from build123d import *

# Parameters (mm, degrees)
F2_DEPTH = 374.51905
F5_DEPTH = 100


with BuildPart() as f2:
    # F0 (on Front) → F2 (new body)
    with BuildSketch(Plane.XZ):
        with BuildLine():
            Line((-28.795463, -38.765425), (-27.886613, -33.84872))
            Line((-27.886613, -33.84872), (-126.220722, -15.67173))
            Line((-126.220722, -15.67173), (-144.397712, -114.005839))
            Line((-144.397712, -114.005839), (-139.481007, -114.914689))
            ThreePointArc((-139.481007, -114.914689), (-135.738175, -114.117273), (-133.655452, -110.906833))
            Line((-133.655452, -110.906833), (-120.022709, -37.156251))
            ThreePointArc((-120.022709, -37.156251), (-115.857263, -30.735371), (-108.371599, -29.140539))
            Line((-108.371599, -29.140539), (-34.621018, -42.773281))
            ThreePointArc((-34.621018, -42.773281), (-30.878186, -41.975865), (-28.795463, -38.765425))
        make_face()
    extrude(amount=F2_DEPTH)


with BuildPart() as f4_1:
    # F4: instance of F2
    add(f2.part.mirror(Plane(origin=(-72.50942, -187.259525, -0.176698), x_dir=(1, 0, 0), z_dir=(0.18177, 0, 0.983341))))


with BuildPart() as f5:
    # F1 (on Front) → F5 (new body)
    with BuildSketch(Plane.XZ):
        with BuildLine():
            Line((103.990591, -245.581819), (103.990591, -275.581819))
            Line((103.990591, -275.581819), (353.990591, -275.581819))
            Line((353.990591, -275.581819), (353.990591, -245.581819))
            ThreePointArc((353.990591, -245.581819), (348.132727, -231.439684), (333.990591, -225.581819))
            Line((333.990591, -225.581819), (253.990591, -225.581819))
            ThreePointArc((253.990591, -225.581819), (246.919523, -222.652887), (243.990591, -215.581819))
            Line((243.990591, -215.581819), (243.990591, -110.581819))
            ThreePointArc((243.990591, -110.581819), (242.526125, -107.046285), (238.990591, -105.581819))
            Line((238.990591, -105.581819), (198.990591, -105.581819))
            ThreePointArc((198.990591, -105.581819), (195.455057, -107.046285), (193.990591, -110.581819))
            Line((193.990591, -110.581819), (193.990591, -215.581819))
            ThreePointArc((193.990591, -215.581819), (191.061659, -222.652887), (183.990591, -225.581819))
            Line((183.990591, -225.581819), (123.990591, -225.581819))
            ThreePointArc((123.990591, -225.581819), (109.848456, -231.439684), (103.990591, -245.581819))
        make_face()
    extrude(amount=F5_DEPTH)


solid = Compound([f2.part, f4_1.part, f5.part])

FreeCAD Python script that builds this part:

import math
import FreeCAD as App
import Part
import Sketcher

doc = App.newDocument("Part")
body = doc.addObject("PartDesign::Body", "Body")

sketch1 = body.newObject("Sketcher::SketchObject", "Sketch")
sketch1.AttachmentSupport = (doc.getObject("XZ_Plane"), [""])
sketch1.MapMode = "FlatFace"
sketch1.addGeometry(Part.LineSegment(App.Vector(-28.8, -38.8, 0), App.Vector(-27.9, -33.8, 0)), False)
sketch1.addGeometry(Part.LineSegment(App.Vector(-27.9, -33.8, 0), App.Vector(-126.2, -15.7, 0)), False)
sketch1.addGeometry(Part.LineSegment(App.Vector(-126.2, -15.7, 0), App.Vector(-144.4, -114, 0)), False)
sketch1.addGeometry(Part.LineSegment(App.Vector(-144.4, -114, 0), App.Vector(-139.5, -114.9, 0)), False)
sketch1.addGeometry(Part.ArcOfCircle(Part.Circle(App.Vector(-138.6, -110, 0), App.Vector(0, 0, 1), 5), math.radians(-100), math.radians(-10)), False)
sketch1.addGeometry(Part.LineSegment(App.Vector(-133.7, -110.9, 0), App.Vector(-120, -37.2, 0)), False)
sketch1.addGeometry(Part.ArcOfCircle(Part.Circle(App.Vector(-110.2, -39, 0), App.Vector(0, 0, 1), 10), math.radians(80), math.radians(170)), False)
sketch1.addGeometry(Part.LineSegment(App.Vector(-108.4, -29.1, 0), App.Vector(-34.6, -42.8, 0)), False)
sketch1.addGeometry(Part.ArcOfCircle(Part.Circle(App.Vector(-33.7, -37.9, 0), App.Vector(0, 0, 1), 5), math.radians(-100), math.radians(-10)), False)
sketch1.addConstraint(Sketcher.Constraint("Coincident", 0, 2, 1, 1))
sketch1.addConstraint(Sketcher.Constraint("Coincident", 1, 2, 2, 1))
sketch1.addConstraint(Sketcher.Constraint("Coincident", 2, 2, 3, 1))
sketch1.addConstraint(Sketcher.Constraint("Tangent", 3, 2, 4, 1))
sketch1.addConstraint(Sketcher.Constraint("Tangent", 4, 2, 5, 1))
sketch1.addConstraint(Sketcher.Constraint("Tangent", 5, 2, 6, 2))
sketch1.addConstraint(Sketcher.Constraint("Tangent", 6, 1, 7, 1))
sketch1.addConstraint(Sketcher.Constraint("Tangent", 7, 2, 8, 1))
sketch1.addConstraint(Sketcher.Constraint("Tangent", 8, 2, 0, 1))
sketch1.addConstraint(Sketcher.Constraint("Equal", 4, 8))
sketch1.addConstraint(Sketcher.Constraint("Perpendicular", 0, 1))
sketch1.addConstraint(Sketcher.Constraint("Perpendicular", 1, 2))
sketch1.addConstraint(Sketcher.Constraint("Perpendicular", 2, 3))
sketch1.addConstraint(Sketcher.Constraint("Perpendicular", 3, 5))
sketch1.addConstraint(Sketcher.Constraint("Perpendicular", 5, 7))
sketch1.addConstraint(Sketcher.Constraint("Equal", 1, 2))
sketch1.addConstraint(Sketcher.Constraint("Equal", 0, 3))
sketch1.addConstraint(Sketcher.Constraint("Radius", 4, 4.999999))
sketch1.addConstraint(Sketcher.Constraint("Radius", 6, 9.999999))
sketch1.addConstraint(Sketcher.Constraint("Distance", 0, 5.0))
sketch1.addConstraint(Sketcher.Constraint("Distance", 1, 100.0))
sketch1.addConstraint(Sketcher.Constraint("DistanceX", 6, 3, -1, 1, 110.189299))
sketch1.addConstraint(Sketcher.Constraint("DistanceX", 6, 1, -1, 1, 108.371599))
sketch1.addConstraint(Sketcher.Constraint("DistanceY", 6, 3, -1, 1, 38.973949))
pad1 = body.newObject("PartDesign::Pad", "Pad")
pad1.Profile = sketch1
pad1.Length = 374.51905
body2 = doc.addObject("PartDesign::Body", "Body001")
doc.recompute()

mirroring = doc.addObject("Part::Mirroring", "Mirroring")
mirroring.Source = body
mirroring.Base = App.Vector(-72.50942, -187.259525, -0.176698)
mirroring.Normal = App.Vector(0.181770013, 0, 0.983341071)
body2.BaseFeature = mirroring
doc.recompute()
body3 = doc.addObject("PartDesign::Body", "Body002")

sketch2 = body3.newObject("Sketcher::SketchObject", "Sketch001")
sketch2.AttachmentSupport = (doc.getObject("XZ_Plane002"), [""])
sketch2.MapMode = "FlatFace"
sketch2.addGeometry(Part.LineSegment(App.Vector(104, -245.6, 0), App.Vector(104, -275.6, 0)), False)
sketch2.addGeometry(Part.LineSegment(App.Vector(104, -275.6, 0), App.Vector(354, -275.6, 0)), False)
sketch2.addGeometry(Part.LineSegment(App.Vector(354, -275.6, 0), App.Vector(354, -245.6, 0)), False)
sketch2.addGeometry(Part.ArcOfCircle(Part.Circle(App.Vector(334, -245.6, 0), App.Vector(0, 0, 1), 20), math.radians(0), math.radians(90)), False)
sketch2.addGeometry(Part.LineSegment(App.Vector(334, -225.6, 0), App.Vector(254, -225.6, 0)), False)
sketch2.addGeometry(Part.ArcOfCircle(Part.Circle(App.Vector(254, -215.6, 0), App.Vector(0, 0, 1), 10), math.radians(180), math.radians(270)), False)
sketch2.addGeometry(Part.LineSegment(App.Vector(244, -215.6, 0), App.Vector(244, -110.6, 0)), False)
sketch2.addGeometry(Part.ArcOfCircle(Part.Circle(App.Vector(239, -110.6, 0), App.Vector(0, 0, 1), 5), math.radians(0), math.radians(90)), False)
sketch2.addGeometry(Part.LineSegment(App.Vector(239, -105.6, 0), App.Vector(199, -105.6, 0)), False)
sketch2.addGeometry(Part.ArcOfCircle(Part.Circle(App.Vector(199, -110.6, 0), App.Vector(0, 0, 1), 5), math.radians(90), math.radians(180)), False)
sketch2.addGeometry(Part.LineSegment(App.Vector(194, -110.6, 0), App.Vector(194, -215.6, 0)), False)
sketch2.addGeometry(Part.ArcOfCircle(Part.Circle(App.Vector(184, -215.6, 0), App.Vector(0, 0, 1), 10), math.radians(-90), math.radians(0)), False)
sketch2.addGeometry(Part.LineSegment(App.Vector(184, -225.6, 0), App.Vector(124, -225.6, 0)), False)
sketch2.addGeometry(Part.ArcOfCircle(Part.Circle(App.Vector(124, -245.6, 0), App.Vector(0, 0, 1), 20), math.radians(90), math.radians(180)), False)
sketch2.addConstraint(Sketcher.Constraint("Coincident", 0, 2, 1, 1))
sketch2.addConstraint(Sketcher.Constraint("Coincident", 1, 2, 2, 1))
sketch2.addConstraint(Sketcher.Constraint("Tangent", 2, 2, 3, 1))
sketch2.addConstraint(Sketcher.Constraint("Tangent", 3, 2, 4, 1))
sketch2.addConstraint(Sketcher.Constraint("Tangent", 4, 2, 5, 2))
sketch2.addConstraint(Sketcher.Constraint("Tangent", 5, 1, 6, 1))
sketch2.addConstraint(Sketcher.Constraint("Tangent", 6, 2, 7, 1))
sketch2.addConstraint(Sketcher.Constraint("Tangent", 7, 2, 8, 1))
sketch2.addConstraint(Sketcher.Constraint("Tangent", 8, 2, 9, 1))
sketch2.addConstraint(Sketcher.Constraint("Tangent", 9, 2, 10, 1))
sketch2.addConstraint(Sketcher.Constraint("Tangent", 10, 2, 11, 2))
sketch2.addConstraint(Sketcher.Constraint("Tangent", 11, 1, 12, 1))
sketch2.addConstraint(Sketcher.Constraint("Tangent", 12, 2, 13, 1))
sketch2.addConstraint(Sketcher.Constraint("Tangent", 13, 2, 0, 1))
sketch2.addConstraint(Sketcher.Constraint("Vertical", 0))
sketch2.addConstraint(Sketcher.Constraint("Horizontal", 1))
sketch2.addConstraint(Sketcher.Constraint("Vertical", 2))
sketch2.addConstraint(Sketcher.Constraint("Horizontal", 4))
sketch2.addConstraint(Sketcher.Constraint("Vertical", 6))
sketch2.addConstraint(Sketcher.Constraint("Horizontal", 8))
sketch2.addConstraint(Sketcher.Constraint("Vertical", 10))
sketch2.addConstraint(Sketcher.Constraint("Horizontal", 12))
sketch2.addConstraint(Sketcher.Constraint("Equal", 7, 9))
sketch2.addConstraint(Sketcher.Constraint("Equal", 5, 11))
sketch2.addConstraint(Sketcher.Constraint("Equal", 3, 13))
sketch2.addConstraint(Sketcher.Constraint("Horizontal", 5, 3, 11, 3))
sketch2.addConstraint(Sketcher.Constraint("Radius", 3, 20.0))
sketch2.addConstraint(Sketcher.Constraint("Radius", 5, 9.999999))
sketch2.addConstraint(Sketcher.Constraint("Radius", 7, 5.0))
sketch2.addConstraint(Sketcher.Constraint("DistanceX", 1, 1, 1, 2, 250.0))
sketch2.addConstraint(Sketcher.Constraint("DistanceX", 4, 2, 4, 1, 80.0))
sketch2.addConstraint(Sketcher.Constraint("DistanceX", 8, 2, 8, 1, 40.0))
sketch2.addConstraint(Sketcher.Constraint("DistanceY", 0, 2, 0, 1, 30.0))
sketch2.addConstraint(Sketcher.Constraint("DistanceY", 6, 1, 6, 2, 105.0))
sketch2.addConstraint(Sketcher.Constraint("DistanceX", -1, 1, 3, 3, 333.990591))
sketch2.addConstraint(Sketcher.Constraint("DistanceY", 3, 3, -1, 1, 245.581819))
pad2 = body3.newObject("PartDesign::Pad", "Pad001")
pad2.Profile = sketch2
pad2.Length = 100
mirroring.Visibility = False

doc.recompute()
